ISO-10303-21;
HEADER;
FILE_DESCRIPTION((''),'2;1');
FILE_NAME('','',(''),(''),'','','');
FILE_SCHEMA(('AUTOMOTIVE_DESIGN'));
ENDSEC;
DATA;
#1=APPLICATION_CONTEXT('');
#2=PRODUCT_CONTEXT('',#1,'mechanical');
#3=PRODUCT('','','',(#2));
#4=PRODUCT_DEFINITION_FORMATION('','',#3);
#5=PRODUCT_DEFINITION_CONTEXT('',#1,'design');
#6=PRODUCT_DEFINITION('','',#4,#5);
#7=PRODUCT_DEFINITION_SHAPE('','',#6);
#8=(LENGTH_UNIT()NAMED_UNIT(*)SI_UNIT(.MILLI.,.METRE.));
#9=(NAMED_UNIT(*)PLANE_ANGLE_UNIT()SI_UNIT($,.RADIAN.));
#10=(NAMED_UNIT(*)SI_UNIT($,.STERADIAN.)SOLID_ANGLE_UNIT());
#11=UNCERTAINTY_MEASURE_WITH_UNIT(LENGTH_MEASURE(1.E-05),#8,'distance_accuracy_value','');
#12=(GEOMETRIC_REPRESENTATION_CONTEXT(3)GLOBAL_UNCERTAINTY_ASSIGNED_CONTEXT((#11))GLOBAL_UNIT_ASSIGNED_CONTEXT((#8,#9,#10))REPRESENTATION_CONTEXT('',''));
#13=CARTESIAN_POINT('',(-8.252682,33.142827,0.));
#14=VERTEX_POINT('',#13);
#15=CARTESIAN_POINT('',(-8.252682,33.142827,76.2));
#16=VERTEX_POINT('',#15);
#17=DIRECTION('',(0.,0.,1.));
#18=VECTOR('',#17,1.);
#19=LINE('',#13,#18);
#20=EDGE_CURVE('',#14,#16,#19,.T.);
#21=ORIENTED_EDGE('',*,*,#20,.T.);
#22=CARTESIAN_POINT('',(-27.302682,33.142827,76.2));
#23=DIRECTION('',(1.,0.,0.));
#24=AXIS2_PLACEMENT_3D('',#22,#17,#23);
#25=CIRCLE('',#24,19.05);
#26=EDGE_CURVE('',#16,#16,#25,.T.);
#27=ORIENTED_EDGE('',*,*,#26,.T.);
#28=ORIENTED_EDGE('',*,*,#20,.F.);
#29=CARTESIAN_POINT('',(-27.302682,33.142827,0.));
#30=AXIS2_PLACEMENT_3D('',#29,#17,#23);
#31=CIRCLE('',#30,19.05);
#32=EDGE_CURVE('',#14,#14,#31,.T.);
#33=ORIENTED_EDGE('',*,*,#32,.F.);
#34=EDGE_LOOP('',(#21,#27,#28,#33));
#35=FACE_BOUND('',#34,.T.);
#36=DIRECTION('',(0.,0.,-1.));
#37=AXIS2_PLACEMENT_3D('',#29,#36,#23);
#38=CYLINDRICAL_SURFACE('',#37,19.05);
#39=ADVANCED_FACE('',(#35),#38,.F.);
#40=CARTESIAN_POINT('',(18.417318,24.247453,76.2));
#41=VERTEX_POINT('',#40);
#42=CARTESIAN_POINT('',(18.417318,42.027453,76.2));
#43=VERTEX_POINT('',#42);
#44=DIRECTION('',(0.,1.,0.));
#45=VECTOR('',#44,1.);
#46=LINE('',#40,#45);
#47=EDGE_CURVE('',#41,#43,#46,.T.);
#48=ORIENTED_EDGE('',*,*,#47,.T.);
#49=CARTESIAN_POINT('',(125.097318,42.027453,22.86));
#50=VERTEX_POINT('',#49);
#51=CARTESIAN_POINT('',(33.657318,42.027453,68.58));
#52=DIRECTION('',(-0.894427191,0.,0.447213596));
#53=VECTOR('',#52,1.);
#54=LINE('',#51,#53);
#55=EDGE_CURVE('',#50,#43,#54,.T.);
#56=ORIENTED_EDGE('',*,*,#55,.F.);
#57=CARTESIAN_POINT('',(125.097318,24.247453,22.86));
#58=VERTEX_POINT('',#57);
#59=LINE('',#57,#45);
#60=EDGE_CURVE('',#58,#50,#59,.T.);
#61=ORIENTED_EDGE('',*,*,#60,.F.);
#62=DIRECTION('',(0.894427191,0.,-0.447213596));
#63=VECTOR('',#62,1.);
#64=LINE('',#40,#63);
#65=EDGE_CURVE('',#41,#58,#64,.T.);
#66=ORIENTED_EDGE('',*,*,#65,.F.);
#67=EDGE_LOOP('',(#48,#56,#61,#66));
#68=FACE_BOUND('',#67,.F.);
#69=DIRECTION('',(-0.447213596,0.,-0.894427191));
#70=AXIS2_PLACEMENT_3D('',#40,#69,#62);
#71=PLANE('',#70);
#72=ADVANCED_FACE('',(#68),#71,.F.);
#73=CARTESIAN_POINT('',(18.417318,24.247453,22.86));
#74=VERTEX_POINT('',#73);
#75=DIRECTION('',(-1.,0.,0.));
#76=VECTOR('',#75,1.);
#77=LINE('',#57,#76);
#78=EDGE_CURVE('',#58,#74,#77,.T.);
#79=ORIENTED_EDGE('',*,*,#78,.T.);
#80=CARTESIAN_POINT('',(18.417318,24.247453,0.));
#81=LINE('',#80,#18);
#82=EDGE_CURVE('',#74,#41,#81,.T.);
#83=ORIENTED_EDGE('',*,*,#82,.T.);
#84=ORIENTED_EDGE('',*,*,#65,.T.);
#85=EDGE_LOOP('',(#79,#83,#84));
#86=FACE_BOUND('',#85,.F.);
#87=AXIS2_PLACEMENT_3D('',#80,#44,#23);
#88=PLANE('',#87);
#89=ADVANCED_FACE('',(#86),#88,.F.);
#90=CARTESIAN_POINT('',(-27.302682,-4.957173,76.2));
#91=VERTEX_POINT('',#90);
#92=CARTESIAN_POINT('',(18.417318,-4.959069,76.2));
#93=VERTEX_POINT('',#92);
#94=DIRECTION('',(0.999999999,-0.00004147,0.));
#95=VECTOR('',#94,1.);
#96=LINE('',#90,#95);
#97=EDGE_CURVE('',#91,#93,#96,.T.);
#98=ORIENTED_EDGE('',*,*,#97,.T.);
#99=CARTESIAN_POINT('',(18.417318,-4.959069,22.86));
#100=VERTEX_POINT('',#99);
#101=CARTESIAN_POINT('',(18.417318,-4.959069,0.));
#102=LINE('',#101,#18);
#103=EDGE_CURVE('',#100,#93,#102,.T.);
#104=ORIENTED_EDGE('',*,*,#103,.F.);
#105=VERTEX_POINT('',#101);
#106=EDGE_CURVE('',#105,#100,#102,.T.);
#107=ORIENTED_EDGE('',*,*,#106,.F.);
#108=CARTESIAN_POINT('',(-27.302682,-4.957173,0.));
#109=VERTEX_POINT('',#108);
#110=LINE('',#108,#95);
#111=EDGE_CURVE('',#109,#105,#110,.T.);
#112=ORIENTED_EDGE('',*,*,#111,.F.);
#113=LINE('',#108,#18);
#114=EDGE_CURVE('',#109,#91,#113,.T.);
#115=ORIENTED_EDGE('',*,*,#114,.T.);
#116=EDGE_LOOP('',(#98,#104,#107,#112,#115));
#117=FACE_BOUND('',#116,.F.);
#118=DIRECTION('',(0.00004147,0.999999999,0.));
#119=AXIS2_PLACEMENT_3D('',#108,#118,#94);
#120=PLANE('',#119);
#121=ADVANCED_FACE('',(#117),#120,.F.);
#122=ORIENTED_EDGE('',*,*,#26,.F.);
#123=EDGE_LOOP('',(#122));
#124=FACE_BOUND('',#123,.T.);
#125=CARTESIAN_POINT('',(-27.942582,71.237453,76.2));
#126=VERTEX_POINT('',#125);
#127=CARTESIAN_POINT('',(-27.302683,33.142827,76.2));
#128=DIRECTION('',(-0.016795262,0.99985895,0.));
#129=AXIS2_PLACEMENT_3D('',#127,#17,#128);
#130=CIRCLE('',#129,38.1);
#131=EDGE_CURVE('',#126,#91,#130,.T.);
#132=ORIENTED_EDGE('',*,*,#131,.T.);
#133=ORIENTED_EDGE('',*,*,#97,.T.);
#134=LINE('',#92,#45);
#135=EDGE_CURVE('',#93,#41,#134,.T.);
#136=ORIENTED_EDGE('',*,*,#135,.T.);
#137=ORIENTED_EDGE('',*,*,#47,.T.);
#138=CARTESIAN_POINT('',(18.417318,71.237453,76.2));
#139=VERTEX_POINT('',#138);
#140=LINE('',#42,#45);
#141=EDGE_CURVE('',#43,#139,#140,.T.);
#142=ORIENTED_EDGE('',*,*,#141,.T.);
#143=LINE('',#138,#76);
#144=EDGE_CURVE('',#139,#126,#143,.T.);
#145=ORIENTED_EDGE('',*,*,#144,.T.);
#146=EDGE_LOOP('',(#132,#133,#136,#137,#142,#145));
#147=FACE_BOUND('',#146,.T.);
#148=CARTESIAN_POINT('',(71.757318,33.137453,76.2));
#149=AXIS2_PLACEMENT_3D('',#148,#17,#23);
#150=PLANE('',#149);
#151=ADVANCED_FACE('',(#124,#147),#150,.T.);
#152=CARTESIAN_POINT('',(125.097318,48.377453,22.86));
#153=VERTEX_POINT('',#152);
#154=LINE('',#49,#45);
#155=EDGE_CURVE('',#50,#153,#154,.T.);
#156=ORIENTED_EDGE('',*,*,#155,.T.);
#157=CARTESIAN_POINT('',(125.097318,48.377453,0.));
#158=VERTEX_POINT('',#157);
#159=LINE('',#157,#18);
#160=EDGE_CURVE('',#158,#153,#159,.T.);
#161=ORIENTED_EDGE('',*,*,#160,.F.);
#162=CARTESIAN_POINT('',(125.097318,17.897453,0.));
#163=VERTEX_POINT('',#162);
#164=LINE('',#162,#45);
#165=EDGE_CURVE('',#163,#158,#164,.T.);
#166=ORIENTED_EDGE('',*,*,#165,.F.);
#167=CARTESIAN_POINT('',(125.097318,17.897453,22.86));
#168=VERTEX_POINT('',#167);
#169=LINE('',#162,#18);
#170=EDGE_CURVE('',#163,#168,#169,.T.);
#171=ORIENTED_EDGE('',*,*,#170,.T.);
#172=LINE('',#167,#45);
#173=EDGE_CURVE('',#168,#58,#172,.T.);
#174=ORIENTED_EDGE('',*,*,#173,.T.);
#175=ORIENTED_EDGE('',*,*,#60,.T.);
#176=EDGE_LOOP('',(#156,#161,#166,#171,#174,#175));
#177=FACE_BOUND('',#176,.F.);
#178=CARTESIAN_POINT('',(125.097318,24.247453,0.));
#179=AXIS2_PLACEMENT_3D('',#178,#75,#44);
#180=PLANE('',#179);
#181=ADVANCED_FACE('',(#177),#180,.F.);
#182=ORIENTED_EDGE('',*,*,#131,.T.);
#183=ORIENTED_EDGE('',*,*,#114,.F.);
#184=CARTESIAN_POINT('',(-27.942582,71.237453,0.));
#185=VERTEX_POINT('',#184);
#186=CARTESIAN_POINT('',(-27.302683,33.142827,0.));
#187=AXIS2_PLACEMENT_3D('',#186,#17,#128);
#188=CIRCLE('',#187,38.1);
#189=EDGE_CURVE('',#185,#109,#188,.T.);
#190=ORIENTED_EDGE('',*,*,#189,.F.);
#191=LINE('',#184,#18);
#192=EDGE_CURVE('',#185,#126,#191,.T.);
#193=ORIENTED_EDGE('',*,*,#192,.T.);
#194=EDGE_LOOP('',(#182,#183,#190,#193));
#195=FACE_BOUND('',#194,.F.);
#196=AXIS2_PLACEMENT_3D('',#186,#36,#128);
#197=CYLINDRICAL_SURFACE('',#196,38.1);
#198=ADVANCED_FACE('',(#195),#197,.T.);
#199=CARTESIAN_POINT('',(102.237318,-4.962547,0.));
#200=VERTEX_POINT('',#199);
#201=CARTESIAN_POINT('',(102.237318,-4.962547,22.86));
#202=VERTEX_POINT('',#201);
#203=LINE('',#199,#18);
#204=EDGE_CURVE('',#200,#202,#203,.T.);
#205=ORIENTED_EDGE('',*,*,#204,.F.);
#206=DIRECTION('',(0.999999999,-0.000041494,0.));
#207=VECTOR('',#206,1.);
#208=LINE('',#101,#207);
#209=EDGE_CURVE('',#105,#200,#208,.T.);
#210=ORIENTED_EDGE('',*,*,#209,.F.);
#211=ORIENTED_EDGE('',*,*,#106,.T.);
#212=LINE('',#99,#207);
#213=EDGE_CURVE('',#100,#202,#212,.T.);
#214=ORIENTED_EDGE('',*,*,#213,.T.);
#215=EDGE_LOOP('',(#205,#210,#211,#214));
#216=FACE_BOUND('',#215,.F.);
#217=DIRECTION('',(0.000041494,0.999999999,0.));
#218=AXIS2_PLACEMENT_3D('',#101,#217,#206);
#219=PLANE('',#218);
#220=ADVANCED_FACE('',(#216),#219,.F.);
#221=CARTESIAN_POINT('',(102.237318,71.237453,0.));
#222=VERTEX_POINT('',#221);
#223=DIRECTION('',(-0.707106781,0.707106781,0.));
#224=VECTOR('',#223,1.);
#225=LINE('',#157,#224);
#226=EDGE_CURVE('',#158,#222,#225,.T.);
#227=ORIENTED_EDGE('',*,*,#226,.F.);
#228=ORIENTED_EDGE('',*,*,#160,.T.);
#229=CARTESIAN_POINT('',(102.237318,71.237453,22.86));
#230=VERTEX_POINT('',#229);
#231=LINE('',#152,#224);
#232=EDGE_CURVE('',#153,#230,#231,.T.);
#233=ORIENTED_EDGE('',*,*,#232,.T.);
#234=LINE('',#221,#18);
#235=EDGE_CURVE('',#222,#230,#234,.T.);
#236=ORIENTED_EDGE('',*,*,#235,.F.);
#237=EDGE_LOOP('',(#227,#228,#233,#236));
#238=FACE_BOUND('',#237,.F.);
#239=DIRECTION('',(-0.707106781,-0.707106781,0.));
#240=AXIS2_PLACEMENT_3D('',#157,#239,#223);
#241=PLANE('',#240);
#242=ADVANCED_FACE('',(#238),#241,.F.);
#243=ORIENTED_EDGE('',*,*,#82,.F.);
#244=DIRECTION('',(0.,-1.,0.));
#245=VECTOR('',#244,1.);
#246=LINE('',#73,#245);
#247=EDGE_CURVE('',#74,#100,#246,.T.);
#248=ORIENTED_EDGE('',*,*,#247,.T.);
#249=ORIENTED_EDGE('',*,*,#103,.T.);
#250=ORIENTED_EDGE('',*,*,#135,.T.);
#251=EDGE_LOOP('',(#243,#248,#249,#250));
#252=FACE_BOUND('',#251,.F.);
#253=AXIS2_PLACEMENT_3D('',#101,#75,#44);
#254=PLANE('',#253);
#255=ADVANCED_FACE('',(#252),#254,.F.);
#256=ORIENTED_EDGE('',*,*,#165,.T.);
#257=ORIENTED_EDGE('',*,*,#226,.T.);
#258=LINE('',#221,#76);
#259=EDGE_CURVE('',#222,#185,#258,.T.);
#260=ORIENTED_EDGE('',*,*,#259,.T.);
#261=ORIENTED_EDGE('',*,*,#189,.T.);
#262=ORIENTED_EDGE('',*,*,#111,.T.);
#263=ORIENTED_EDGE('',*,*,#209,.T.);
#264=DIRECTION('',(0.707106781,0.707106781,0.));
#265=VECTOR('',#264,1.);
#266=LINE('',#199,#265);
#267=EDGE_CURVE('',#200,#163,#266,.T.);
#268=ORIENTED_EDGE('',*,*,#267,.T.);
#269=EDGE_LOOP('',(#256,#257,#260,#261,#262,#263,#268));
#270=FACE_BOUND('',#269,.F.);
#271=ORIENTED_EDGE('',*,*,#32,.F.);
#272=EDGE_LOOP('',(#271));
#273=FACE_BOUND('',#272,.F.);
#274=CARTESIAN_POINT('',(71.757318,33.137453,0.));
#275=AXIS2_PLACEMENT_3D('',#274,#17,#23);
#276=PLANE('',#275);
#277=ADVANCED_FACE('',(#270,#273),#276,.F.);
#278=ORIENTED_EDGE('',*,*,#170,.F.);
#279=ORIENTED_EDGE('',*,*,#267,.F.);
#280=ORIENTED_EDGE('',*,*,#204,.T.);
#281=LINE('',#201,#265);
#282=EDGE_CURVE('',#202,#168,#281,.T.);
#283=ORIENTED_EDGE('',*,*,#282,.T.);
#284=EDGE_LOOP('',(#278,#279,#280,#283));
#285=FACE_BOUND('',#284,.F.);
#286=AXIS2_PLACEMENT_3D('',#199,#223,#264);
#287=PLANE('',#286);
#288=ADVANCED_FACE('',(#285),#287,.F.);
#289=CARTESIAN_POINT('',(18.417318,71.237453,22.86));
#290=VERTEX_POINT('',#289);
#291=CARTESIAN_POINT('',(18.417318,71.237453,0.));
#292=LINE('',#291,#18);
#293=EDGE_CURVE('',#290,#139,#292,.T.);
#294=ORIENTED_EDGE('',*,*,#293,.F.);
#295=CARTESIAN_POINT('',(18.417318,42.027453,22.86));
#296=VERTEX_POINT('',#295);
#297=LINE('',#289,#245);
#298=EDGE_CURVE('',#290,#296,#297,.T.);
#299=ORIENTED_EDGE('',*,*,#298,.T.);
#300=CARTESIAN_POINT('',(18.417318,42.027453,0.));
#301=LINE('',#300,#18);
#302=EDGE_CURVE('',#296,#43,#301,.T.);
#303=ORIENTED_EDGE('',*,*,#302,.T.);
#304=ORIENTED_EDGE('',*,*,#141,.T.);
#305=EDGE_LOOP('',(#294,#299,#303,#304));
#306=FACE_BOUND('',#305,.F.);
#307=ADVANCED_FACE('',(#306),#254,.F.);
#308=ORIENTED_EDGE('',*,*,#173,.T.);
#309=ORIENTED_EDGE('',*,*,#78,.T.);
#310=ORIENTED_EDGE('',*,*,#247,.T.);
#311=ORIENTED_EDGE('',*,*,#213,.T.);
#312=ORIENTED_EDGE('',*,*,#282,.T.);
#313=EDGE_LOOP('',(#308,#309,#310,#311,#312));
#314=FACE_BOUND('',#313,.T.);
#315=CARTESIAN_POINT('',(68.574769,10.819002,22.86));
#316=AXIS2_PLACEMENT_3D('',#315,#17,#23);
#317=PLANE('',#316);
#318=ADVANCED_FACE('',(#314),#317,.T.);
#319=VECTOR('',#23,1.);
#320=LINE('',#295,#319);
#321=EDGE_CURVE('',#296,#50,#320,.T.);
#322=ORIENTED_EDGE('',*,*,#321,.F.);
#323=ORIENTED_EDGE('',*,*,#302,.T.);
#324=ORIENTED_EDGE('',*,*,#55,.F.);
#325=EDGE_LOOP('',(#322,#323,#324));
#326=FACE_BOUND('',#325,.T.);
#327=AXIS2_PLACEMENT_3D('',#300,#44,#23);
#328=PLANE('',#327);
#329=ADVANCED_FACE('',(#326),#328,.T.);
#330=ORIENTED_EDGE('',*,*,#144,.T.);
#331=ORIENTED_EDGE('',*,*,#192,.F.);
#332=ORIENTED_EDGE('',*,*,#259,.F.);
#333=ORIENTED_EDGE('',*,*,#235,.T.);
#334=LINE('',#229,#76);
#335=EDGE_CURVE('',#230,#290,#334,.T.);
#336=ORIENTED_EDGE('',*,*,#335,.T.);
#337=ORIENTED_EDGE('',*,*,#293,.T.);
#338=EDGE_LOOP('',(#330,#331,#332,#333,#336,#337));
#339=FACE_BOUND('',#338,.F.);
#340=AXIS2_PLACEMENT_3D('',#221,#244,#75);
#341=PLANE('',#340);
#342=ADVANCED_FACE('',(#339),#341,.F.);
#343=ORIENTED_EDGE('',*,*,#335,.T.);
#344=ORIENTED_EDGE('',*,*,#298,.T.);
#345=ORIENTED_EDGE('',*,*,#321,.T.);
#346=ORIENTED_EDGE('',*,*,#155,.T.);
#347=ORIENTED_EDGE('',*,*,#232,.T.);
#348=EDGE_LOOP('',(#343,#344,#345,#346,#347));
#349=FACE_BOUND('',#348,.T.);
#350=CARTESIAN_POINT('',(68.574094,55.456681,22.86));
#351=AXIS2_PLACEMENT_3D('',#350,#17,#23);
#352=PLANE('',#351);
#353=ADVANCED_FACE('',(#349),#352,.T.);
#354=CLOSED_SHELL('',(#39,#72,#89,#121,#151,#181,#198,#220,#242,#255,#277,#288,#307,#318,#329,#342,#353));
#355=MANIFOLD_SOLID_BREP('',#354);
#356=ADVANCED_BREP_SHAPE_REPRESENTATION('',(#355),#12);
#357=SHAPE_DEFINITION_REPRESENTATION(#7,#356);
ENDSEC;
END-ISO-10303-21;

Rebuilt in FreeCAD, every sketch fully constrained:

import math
import FreeCAD as App
import Part
import Sketcher
Q = App.Units.Quantity


def add_polygon(sketch, points):
    """Adds a closed chain of lines whose ends are joined by coincident constraints."""
    first, n = sketch.GeometryCount, len(points)
    for a, b in zip(points, points[1:] + points[:1]):
        sketch.addGeometry(Part.LineSegment(App.Vector(*a, 0), App.Vector(*b, 0)), False)
    for i in range(n):
        sketch.addConstraint(Sketcher.Constraint("Coincident", first + i, 2, first + (i + 1) % n, 1))

doc = App.newDocument("Part")
body = doc.addObject("PartDesign::Body", "Body")

# Sketch on XY plane
sketch1 = body.newObject("Sketcher::SketchObject", "Sketch")
sketch1.AttachmentSupport = (doc.getObject("XY_Plane"), [""])
sketch1.MapMode = "FlatFace"
sketch1.addGeometry([
    Part.LineSegment(App.Vector(18, 71, 0), App.Vector(-28, 71, 0)),  # 0
    Part.ArcOfCircle(Part.Circle(App.Vector(-27, 33, 0), App.Vector(0, 0, 1), 38), math.radians(91), math.radians(270)),  # 1
    Part.LineSegment(App.Vector(-27, -5, 0), App.Vector(18, -5, 0)),  # 2
    Part.LineSegment(App.Vector(18, -5, 0), App.Vector(18, 71, 0)),  # 3
    Part.Circle(App.Vector(-27, 33, 0), App.Vector(0, 0, 1), 19),  # 4
], False)
sketch1.addConstraint([
    Sketcher.Constraint("Coincident", 0, 2, 1, 1),
    Sketcher.Constraint("Coincident", 1, 2, 2, 1),
    Sketcher.Constraint("Coincident", 2, 2, 3, 1),
    Sketcher.Constraint("Coincident", 3, 2, 0, 1),
    Sketcher.Constraint("Horizontal", 0),
    Sketcher.Constraint("Vertical", 3),
    Sketcher.Constraint("Coincident", 4, 3, 1, 3),
    Sketcher.Constraint("Vertical", 4, 3, 1, 2),
    Sketcher.Constraint("Diameter", 4, Q("1.5 in")),
    Sketcher.Constraint("Radius", 1, Q("1.5 in")),
    Sketcher.Constraint("Distance", 2, Q("1.8 in")),
    Sketcher.Constraint("DistanceX", 0, 2, 0, 1, 46.3599),
    Sketcher.Constraint("DistanceY", 3, 1, 3, 2, 76.196522),
    Sketcher.Constraint("DistanceX", 1, 2, -1, 1, 27.302682),
    Sketcher.Constraint("DistanceY", 2, 2, -1, 1, 4.959069),
])
pad1 = body.newObject("PartDesign::Pad", "Pad")
pad1.Profile = sketch1
pad1.Length = Q("3 in")

# Sketch on XY plane
sketch2 = body.newObject("Sketcher::SketchObject", "Sketch001")
sketch2.AttachmentSupport = (doc.getObject("XY_Plane"), [""])
sketch2.MapMode = "FlatFace"
add_polygon(sketch2, [(102, 71), (18, 71), (18, 42), (125, 42), (125, 48)])  # lines 0-4
add_polygon(sketch2, [(18, 24), (18, -5), (102, -5), (125, 18), (125, 24)])  # lines 5-9
sketch2.addConstraint([
    Sketcher.Constraint("Horizontal", 0),
    Sketcher.Constraint("Vertical", 1),
    Sketcher.Constraint("Horizontal", 2),
    Sketcher.Constraint("Vertical", 3),
    Sketcher.Constraint("Vertical", 5),
    Sketcher.Constraint("Vertical", 8),
    Sketcher.Constraint("Horizontal", 9),
    Sketcher.Constraint("Perpendicular", 4, 7),
    Sketcher.Constraint("Vertical", 1, 2, 5, 2),
    Sketcher.Constraint("Vertical", 4, 2, 6, 2),
    Sketcher.Constraint("Vertical", 3, 2, 7, 2),
    Sketcher.Constraint("Equal", 3, 8),
    Sketcher.Constraint("Equal", 4, 7),
    Sketcher.Constraint("DistanceX", 0, 2, 0, 1, Q("3.3 in")),
    Sketcher.Constraint("DistanceX", 2, 1, 2, 2, Q("4.2 in")),
    Sketcher.Constraint("DistanceY", 6, 2, 4, 2, Q("3 in")),
    Sketcher.Constraint("DistanceY", 1, 2, 1, 1, Q("1.15 in")),
    Sketcher.Constraint("DistanceY", 5, 2, 5, 1, 29.206522),
    Sketcher.Constraint("DistanceX", -1, 1, 0, 2, 18.417318),
    Sketcher.Constraint("DistanceY", 5, 2, -1, 1, 4.959069),
])
pad2 = body.newObject("PartDesign::Pad", "Pad001")
pad2.Profile = sketch2
pad2.Length = Q("0.9 in")

# Sketch on XY plane
sketch3 = body.newObject("Sketcher::SketchObject", "Sketch002")
sketch3.AttachmentSupport = (doc.getObject("XY_Plane"), [""])
sketch3.MapMode = "FlatFace"
add_polygon(sketch3, [(18, 42), (18, 24), (125, 24), (125, 42)])  # lines 0-3
sketch3.addConstraint([
    Sketcher.Constraint("Vertical", 0),
    Sketcher.Constraint("Horizontal", 1),
    Sketcher.Constraint("Vertical", 2),
    Sketcher.Constraint("Horizontal", 3),
    Sketcher.Constraint("DistanceX", 1, 1, 1, 2, Q("4.2 in")),
    Sketcher.Constraint("DistanceY", 0, 2, 0, 1, Q("0.7 in")),
    Sketcher.Constraint("DistanceX", -1, 1, 0, 2, 18.417318),
    Sketcher.Constraint("DistanceY", -1, 1, 0, 2, 24.247453),
])
pad3 = body.newObject("PartDesign::Pad", "Pad002")
pad3.Profile = sketch3
pad3.Length = Q("3 in")

# Sketch on XZ plane
sketch4 = body.newObject("Sketcher::SketchObject", "Sketch003")
sketch4.AttachmentSupport = (doc.getObject("XZ_Plane"), [""])
sketch4.MapMode = "FlatFace"
sketch4.AttachmentOffset = App.Placement(App.Vector(0, 0, -24.247453), App.Rotation())
add_polygon(sketch4, [(125, 76), (18, 76), (125, 23)])  # lines 0-2
sketch4.addConstraint([
    Sketcher.Constraint("Horizontal", 0),
    Sketcher.Constraint("Vertical", 2),
    Sketcher.Constraint("DistanceX", 0, 2, 0, 1, Q("4.2 in")),
    Sketcher.Constraint("DistanceY", 2, 1, 2, 2, Q("2.1 in")),
    Sketcher.Constraint("DistanceY", -1, 1, 0, 2, Q("3 in")),
    Sketcher.Constraint("DistanceX", -1, 1, 0, 2, 18.417318),
])
pocket1 = body.newObject("PartDesign::Pocket", "Pocket")
pocket1.Profile = sketch4
pocket1.Length = Q("1 in")

doc.recompute()
